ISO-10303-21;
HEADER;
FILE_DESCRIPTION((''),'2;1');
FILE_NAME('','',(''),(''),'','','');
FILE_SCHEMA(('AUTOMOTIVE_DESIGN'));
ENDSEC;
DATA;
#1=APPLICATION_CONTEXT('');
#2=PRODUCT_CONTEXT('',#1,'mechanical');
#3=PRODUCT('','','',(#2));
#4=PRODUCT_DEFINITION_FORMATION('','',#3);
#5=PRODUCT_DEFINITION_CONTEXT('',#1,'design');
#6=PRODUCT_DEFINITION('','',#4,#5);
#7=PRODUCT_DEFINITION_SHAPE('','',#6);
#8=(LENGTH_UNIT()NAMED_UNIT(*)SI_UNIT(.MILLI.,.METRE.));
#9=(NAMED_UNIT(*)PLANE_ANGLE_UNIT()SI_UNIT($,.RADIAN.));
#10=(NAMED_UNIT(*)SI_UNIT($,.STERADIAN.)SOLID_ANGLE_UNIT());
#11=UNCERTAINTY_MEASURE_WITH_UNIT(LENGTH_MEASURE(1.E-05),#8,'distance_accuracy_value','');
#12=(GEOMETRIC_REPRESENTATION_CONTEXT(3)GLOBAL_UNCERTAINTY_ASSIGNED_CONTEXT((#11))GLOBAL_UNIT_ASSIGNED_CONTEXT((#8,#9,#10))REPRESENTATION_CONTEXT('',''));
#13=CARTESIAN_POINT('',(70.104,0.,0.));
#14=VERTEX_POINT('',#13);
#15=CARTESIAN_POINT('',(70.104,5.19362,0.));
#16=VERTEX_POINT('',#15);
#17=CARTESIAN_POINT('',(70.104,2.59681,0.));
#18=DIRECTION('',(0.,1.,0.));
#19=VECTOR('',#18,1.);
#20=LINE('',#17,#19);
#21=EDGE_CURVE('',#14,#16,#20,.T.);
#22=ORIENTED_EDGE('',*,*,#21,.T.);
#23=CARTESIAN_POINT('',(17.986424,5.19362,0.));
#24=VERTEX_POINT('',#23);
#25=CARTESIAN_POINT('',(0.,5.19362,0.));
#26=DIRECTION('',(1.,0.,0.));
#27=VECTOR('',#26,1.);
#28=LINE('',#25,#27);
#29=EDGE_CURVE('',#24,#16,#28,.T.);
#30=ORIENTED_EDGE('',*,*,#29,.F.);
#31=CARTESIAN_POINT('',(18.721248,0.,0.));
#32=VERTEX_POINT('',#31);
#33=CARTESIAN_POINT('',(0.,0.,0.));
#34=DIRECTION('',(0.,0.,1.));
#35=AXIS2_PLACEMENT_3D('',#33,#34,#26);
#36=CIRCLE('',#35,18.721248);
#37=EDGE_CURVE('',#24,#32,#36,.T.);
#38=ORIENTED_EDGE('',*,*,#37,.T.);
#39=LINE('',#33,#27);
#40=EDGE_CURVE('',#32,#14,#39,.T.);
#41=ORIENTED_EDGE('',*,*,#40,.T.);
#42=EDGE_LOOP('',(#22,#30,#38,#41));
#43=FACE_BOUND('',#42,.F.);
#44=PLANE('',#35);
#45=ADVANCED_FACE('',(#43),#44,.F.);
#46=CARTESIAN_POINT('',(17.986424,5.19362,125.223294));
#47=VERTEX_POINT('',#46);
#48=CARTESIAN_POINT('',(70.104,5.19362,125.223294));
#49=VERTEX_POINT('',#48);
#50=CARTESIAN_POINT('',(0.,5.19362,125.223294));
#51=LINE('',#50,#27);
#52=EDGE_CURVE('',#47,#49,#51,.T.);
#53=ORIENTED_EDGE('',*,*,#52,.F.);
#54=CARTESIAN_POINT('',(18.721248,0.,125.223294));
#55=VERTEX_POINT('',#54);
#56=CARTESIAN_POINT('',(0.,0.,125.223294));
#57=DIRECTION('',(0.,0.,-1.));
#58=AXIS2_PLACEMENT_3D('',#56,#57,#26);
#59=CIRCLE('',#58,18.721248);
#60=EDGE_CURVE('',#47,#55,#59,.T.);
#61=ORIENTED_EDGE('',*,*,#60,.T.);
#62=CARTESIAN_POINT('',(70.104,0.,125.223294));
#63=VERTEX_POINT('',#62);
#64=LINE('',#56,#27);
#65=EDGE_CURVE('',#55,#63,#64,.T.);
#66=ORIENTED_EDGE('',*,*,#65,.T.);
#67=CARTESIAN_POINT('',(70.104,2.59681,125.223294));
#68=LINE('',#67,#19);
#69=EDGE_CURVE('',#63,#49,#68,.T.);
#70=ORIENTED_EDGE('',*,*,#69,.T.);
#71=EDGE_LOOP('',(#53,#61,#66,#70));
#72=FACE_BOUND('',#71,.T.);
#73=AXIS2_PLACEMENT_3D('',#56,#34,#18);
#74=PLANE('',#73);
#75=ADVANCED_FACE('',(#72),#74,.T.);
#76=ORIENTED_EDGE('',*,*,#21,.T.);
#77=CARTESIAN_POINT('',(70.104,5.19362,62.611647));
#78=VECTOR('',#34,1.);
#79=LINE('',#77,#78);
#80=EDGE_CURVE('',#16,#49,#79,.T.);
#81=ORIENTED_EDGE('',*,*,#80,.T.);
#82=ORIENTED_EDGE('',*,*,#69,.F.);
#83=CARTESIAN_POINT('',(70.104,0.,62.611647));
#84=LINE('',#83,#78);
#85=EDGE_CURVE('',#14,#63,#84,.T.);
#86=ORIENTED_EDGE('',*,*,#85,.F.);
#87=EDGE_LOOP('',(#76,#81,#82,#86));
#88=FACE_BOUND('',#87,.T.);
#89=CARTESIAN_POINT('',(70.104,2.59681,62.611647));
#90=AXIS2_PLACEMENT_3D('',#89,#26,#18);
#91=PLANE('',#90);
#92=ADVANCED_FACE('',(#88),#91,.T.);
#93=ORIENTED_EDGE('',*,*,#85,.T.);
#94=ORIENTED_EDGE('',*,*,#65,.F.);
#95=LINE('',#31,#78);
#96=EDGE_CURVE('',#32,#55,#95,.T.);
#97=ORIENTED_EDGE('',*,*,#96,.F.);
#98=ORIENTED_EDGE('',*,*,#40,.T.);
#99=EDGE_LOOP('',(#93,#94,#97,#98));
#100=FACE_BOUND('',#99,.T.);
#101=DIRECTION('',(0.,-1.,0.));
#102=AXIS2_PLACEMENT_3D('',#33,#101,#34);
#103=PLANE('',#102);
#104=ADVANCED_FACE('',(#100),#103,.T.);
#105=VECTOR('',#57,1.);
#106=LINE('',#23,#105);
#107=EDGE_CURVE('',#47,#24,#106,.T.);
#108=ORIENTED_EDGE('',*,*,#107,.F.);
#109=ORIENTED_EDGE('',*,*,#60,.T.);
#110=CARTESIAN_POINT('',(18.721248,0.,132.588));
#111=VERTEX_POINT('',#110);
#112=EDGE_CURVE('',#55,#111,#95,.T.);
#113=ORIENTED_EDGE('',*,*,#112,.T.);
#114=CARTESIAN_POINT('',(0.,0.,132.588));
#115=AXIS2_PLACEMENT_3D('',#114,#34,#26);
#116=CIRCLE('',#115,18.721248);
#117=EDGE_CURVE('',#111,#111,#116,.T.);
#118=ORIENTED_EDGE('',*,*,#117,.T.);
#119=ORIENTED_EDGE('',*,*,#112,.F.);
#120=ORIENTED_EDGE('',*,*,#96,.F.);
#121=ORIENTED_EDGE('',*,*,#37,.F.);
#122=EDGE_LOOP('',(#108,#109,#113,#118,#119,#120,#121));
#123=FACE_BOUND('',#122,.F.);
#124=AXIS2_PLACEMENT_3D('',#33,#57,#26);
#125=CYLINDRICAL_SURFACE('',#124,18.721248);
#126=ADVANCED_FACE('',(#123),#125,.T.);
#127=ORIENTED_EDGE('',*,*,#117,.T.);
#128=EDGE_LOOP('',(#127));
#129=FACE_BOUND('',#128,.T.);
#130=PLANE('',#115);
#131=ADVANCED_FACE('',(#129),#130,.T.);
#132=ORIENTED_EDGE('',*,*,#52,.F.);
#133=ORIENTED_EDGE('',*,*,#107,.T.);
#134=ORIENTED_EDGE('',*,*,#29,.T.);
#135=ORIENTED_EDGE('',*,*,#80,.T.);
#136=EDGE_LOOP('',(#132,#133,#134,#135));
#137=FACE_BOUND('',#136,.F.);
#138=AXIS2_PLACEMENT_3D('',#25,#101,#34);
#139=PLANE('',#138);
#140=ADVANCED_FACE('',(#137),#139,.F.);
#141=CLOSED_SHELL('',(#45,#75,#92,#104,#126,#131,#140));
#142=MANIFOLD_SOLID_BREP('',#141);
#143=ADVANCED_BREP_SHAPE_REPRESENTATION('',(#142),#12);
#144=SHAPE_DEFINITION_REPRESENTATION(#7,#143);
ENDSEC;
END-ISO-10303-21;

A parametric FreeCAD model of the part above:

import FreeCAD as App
import Part
import Sketcher

V = App.Vector


def add_polygon(sketch, points):
    """Adds a closed chain of lines whose ends are joined by coincident constraints."""
    first, n = sketch.GeometryCount, len(points)
    for a, b in zip(points, points[1:] + points[:1]):
        sketch.addGeometry(Part.LineSegment(App.Vector(*a, 0), App.Vector(*b, 0)), False)
    for i in range(n):
        sketch.addConstraint(Sketcher.Constraint("Coincident", first + i, 2, first + (i + 1) % n, 1))

doc = App.newDocument("Part")
params = doc.addObject("Spreadsheet::Sheet", "Params")
for row, (alias, value) in enumerate([
    ("pad1_length", "5.22 in"),
    ("pad2_length", "2.76 in"),
], start=1):
    params.set(f"A{row}", alias)
    params.set(f"B{row}", "=" + value)
    params.setAlias(f"B{row}", alias)

body = doc.addObject("PartDesign::Body", "Body")

# Sketch on XY plane
sketch1 = doc.addObject("Sketcher::SketchObject", "Sketch")
body.addObject(sketch1)
sketch1.AttachmentSupport = (doc.XY_Plane, [""])
sketch1.MapMode = "FlatFace"
sketch1.addGeometry(Part.Circle(V(0, 0, 0), V(0, 0, 1), 19), False)
sketch1.addConstraint([
    Sketcher.Constraint("Coincident", 0, 3, -1, 1),
    Sketcher.Constraint("Diameter", 0, 37.442496),
])
pad1 = doc.addObject("PartDesign::Pad", "Pad")
body.addObject(pad1)
pad1.Profile = sketch1
pad1.setExpression("Length", "Params.pad1_length")

# Sketch on YZ plane
sketch2 = doc.addObject("Sketcher::SketchObject", "Sketch001")
body.addObject(sketch2)
sketch2.AttachmentSupport = (doc.YZ_Plane, [""])
sketch2.MapMode = "FlatFace"
add_polygon(sketch2, [(0, 125), (0, 0), (5, 0), (5, 125)])  # lines 0-3
sketch2.addConstraint([
    Sketcher.Constraint("Vertical", 0),
    Sketcher.Constraint("Horizontal", 1),
    Sketcher.Constraint("Vertical", 2),
    Sketcher.Constraint("Horizontal", 3),
    Sketcher.Constraint("Coincident", 0, 2, -1, 1),
    Sketcher.Constraint("DistanceX", 1, 1, 1, 2, 5.19362),
    Sketcher.Constraint("DistanceY", 0, 2, 0, 1, 125.223294),
])
pad2 = doc.addObject("PartDesign::Pad", "Pad001")
body.addObject(pad2)
pad2.Profile = sketch2
pad2.setExpression("Length", "Params.pad2_length")

doc.recompute()
